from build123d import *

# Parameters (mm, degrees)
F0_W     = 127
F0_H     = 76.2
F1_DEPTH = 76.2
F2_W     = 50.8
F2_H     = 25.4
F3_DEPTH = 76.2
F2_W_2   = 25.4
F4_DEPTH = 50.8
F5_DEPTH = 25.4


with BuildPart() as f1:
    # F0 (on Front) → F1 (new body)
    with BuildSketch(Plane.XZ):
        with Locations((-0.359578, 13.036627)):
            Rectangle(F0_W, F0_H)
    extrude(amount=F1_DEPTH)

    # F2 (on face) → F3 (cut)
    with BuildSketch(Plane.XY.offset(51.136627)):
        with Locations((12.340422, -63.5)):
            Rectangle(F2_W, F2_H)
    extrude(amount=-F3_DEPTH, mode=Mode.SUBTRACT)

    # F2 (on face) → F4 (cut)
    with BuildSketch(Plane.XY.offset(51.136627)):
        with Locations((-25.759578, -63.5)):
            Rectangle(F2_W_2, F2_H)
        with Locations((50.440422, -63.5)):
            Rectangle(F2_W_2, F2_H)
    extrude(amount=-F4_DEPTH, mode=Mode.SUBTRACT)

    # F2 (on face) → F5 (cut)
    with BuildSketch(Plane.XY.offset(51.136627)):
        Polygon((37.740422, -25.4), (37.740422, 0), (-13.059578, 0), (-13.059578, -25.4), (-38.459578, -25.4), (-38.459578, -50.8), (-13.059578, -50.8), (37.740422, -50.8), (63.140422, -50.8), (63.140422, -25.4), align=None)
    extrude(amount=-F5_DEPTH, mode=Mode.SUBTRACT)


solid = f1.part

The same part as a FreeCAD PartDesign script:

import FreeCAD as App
import Part
import Sketcher
from FreeCAD import Vector
Q = App.Units.Quantity

doc = App.newDocument("Part")
body = doc.addObject("PartDesign::Body", "Body")

sketch1 = body.newObject("Sketcher::SketchObject", "Sketch")
sketch1.AttachmentSupport = (doc.getObject("XZ_Plane"), [""])
sketch1.MapMode = "FlatFace"
sketch1.addGeometry(Part.LineSegment(Vector(-64, 51, 0), Vector(-64, -25, 0)), False)
sketch1.addGeometry(Part.LineSegment(Vector(-64, -25, 0), Vector(63, -25, 0)), False)
sketch1.addGeometry(Part.LineSegment(Vector(63, -25, 0), Vector(63, 51, 0)), False)
sketch1.addGeometry(Part.LineSegment(Vector(63, 51, 0), Vector(-64, 51, 0)), False)
sketch1.addConstraint(Sketcher.Constraint("Coincident", 0, 2, 1, 1))
sketch1.addConstraint(Sketcher.Constraint("Coincident", 1, 2, 2, 1))
sketch1.addConstraint(Sketcher.Constraint("Coincident", 2, 2, 3, 1))
sketch1.addConstraint(Sketcher.Constraint("Coincident", 3, 2, 0, 1))
sketch1.addConstraint(Sketcher.Constraint("Vertical", 0))
sketch1.addConstraint(Sketcher.Constraint("Horizontal", 1))
sketch1.addConstraint(Sketcher.Constraint("Vertical", 2))
sketch1.addConstraint(Sketcher.Constraint("Horizontal", 3))
sketch1.addConstraint(Sketcher.Constraint("DistanceX", 1, 1, 1, 2, Q("5 in")))
sketch1.addConstraint(Sketcher.Constraint("DistanceY", 0, 2, 0, 1, Q("3 in")))
sketch1.addConstraint(Sketcher.Constraint("DistanceX", 0, 2, -1, 1, Q("63.859578 mm")))
sketch1.addConstraint(Sketcher.Constraint("DistanceY", 0, 2, -1, 1, Q("25.063373 mm")))
pad1 = body.newObject("PartDesign::Pad", "Pad")
pad1.Profile = sketch1
pad1.Length = Q("3 in")

sketch2 = body.newObject("Sketcher::SketchObject", "Sketch001")
sketch2.AttachmentSupport = (doc.getObject("XY_Plane"), [""])
sketch2.MapMode = "FlatFace"
sketch2.AttachmentOffset = App.Placement(Vector(0, 0, 51.136627), App.Rotation())
sketch2.addGeometry(Part.LineSegment(Vector(-13, -51, 0), Vector(-13, -76, 0)), False)
sketch2.addGeometry(Part.LineSegment(Vector(-13, -76, 0), Vector(38, -76, 0)), False)
sketch2.addGeometry(Part.LineSegment(Vector(38, -76, 0), Vector(38, -51, 0)), False)
sketch2.addGeometry(Part.LineSegment(Vector(38, -51, 0), Vector(-13, -51, 0)), False)
sketch2.addConstraint(Sketcher.Constraint("Coincident", 0, 2, 1, 1))
sketch2.addConstraint(Sketcher.Constraint("Coincident", 1, 2, 2, 1))
sketch2.addConstraint(Sketcher.Constraint("Coincident", 2, 2, 3, 1))
sketch2.addConstraint(Sketcher.Constraint("Coincident", 3, 2, 0, 1))
sketch2.addConstraint(Sketcher.Constraint("Vertical", 0))
sketch2.addConstraint(Sketcher.Constraint("Horizontal", 1))
sketch2.addConstraint(Sketcher.Constraint("Vertical", 2))
sketch2.addConstraint(Sketcher.Constraint("Horizontal", 3))
sketch2.addConstraint(Sketcher.Constraint("DistanceX", 1, 1, 1, 2, Q("2 in")))
sketch2.addConstraint(Sketcher.Constraint("DistanceY", 0, 2, 0, 1, Q("1 in")))
sketch2.addConstraint(Sketcher.Constraint("DistanceY", 0, 2, -1, 1, Q("3 in")))
sketch2.addConstraint(Sketcher.Constraint("DistanceX", 0, 2, -1, 1, Q("13.059578 mm")))
pocket1 = body.newObject("PartDesign::Pocket", "Pocket")
pocket1.Profile = sketch2
pocket1.Length = Q("3 in")

sketch3 = body.newObject("Sketcher::SketchObject", "Sketch002")
sketch3.AttachmentSupport = (doc.getObject("XY_Plane"), [""])
sketch3.MapMode = "FlatFace"
sketch3.AttachmentOffset = App.Placement(Vector(0, 0, 51.136627), App.Rotation())
sketch3.addGeometry(Part.LineSegment(Vector(-38, -51, 0), Vector(-38, -76, 0)), False)
sketch3.addGeometry(Part.LineSegment(Vector(-38, -76, 0), Vector(-13, -76, 0)), False)
sketch3.addGeometry(Part.LineSegment(Vector(-13, -76, 0), Vector(-13, -51, 0)), False)
sketch3.addGeometry(Part.LineSegment(Vector(-13, -51, 0), Vector(-38, -51, 0)), False)
sketch3.addGeometry(Part.LineSegment(Vector(38, -51, 0), Vector(38, -76, 0)), False)
sketch3.addGeometry(Part.LineSegment(Vector(38, -76, 0), Vector(63, -76, 0)), False)
sketch3.addGeometry(Part.LineSegment(Vector(63, -76, 0), Vector(63, -51, 0)), False)
sketch3.addGeometry(Part.LineSegment(Vector(63, -51, 0), Vector(38, -51, 0)), False)
sketch3.addConstraint(Sketcher.Constraint("Coincident", 0, 2, 1, 1))
sketch3.addConstraint(Sketcher.Constraint("Coincident", 1, 2, 2, 1))
sketch3.addConstraint(Sketcher.Constraint("Coincident", 2, 2, 3, 1))
sketch3.addConstraint(Sketcher.Constraint("Coincident", 3, 2, 0, 1))
sketch3.addConstraint(Sketcher.Constraint("Coincident", 4, 2, 5, 1))
sketch3.addConstraint(Sketcher.Constraint("Coincident", 5, 2, 6, 1))
sketch3.addConstraint(Sketcher.Constraint("Coincident", 6, 2, 7, 1))
sketch3.addConstraint(Sketcher.Constraint("Coincident", 7, 2, 4, 1))
sketch3.addConstraint(Sketcher.Constraint("Vertical", 0))
sketch3.addConstraint(Sketcher.Constraint("Horizontal", 1))
sketch3.addConstraint(Sketcher.Constraint("Vertical", 2))
sketch3.addConstraint(Sketcher.Constraint("Horizontal", 3))
sketch3.addConstraint(Sketcher.Constraint("Vertical", 4))
sketch3.addConstraint(Sketcher.Constraint("Horizontal", 5))
sketch3.addConstraint(Sketcher.Constraint("Vertical", 6))
sketch3.addConstraint(Sketcher.Constraint("Horizontal", 7))
sketch3.addConstraint(Sketcher.Constraint("Horizontal", 1, 2, 4, 2))
sketch3.addConstraint(Sketcher.Constraint("Horizontal", 3, 2, 6, 2))
sketch3.addConstraint(Sketcher.Constraint("Equal", 3, 5))
sketch3.addConstraint(Sketcher.Constraint("Equal", 7, 0))
sketch3.addConstraint(Sketcher.Constraint("DistanceX", 1, 1, 1, 2, Q("1 in")))
sketch3.addConstraint(Sketcher.Constraint("DistanceY", 0, 2, -1, 1, Q("3 in")))
sketch3.addConstraint(Sketcher.Constraint("DistanceX", 1, 2, 4, 2, Q("2 in")))
sketch3.addConstraint(Sketcher.Constraint("DistanceX", 0, 2, -1, 1, Q("38.459578 mm")))
pocket2 = body.newObject("PartDesign::Pocket", "Pocket001")
pocket2.Profile = sketch3
pocket2.Length = Q("2 in")

sketch4 = body.newObject("Sketcher::SketchObject", "Sketch003")
sketch4.AttachmentSupport = (doc.getObject("XY_Plane"), [""])
sketch4.MapMode = "FlatFace"
sketch4.AttachmentOffset = App.Placement(Vector(0, 0, 51.136627), App.Rotation())
sketch4.addGeometry(Part.LineSegment(Vector(38, -25, 0), Vector(38, 0, 0)), False)
sketch4.addGeometry(Part.LineSegment(Vector(38, 0, 0), Vector(-13, 0, 0)), False)
sketch4.addGeometry(Part.LineSegment(Vector(-13, 0, 0), Vector(-13, -25, 0)), False)
sketch4.addGeometry(Part.LineSegment(Vector(-13, -25, 0), Vector(-38, -25, 0)), False)
sketch4.addGeometry(Part.LineSegment(Vector(-38, -25, 0), Vector(-38, -51, 0)), False)
sketch4.addGeometry(Part.LineSegment(Vector(-38, -51, 0), Vector(63, -51, 0)), False)
sketch4.addGeometry(Part.LineSegment(Vector(63, -51, 0), Vector(63, -25, 0)), False)
sketch4.addGeometry(Part.LineSegment(Vector(63, -25, 0), Vector(38, -25, 0)), False)
sketch4.addConstraint(Sketcher.Constraint("Coincident", 0, 2, 1, 1))
sketch4.addConstraint(Sketcher.Constraint("Coincident", 1, 2, 2, 1))
sketch4.addConstraint(Sketcher.Constraint("Coincident", 2, 2, 3, 1))
sketch4.addConstraint(Sketcher.Constraint("Coincident", 3, 2, 4, 1))
sketch4.addConstraint(Sketcher.Constraint("Coincident", 4, 2, 5, 1))
sketch4.addConstraint(Sketcher.Constraint("Coincident", 5, 2, 6, 1))
sketch4.addConstraint(Sketcher.Constraint("Coincident", 6, 2, 7, 1))
sketch4.addConstraint(Sketcher.Constraint("Coincident", 7, 2, 0, 1))
sketch4.addConstraint(Sketcher.Constraint("Vertical", 0))
sketch4.addConstraint(Sketcher.Constraint("Horizontal", 1))
sketch4.addConstraint(Sketcher.Constraint("Vertical", 2))
sketch4.addConstraint(Sketcher.Constraint("Horizontal", 3))
sketch4.addConstraint(Sketcher.Constraint("Vertical", 4))
sketch4.addConstraint(Sketcher.Constraint("Horizontal", 5))
sketch4.addConstraint(Sketcher.Constraint("Vertical", 6))
sketch4.addConstraint(Sketcher.Constraint("Horizontal", 7))
sketch4.addConstraint(Sketcher.Constraint("PointOnObject", 0, 2, -1))
sketch4.addConstraint(Sketcher.Constraint("Horizontal", 3, 2, 6, 2))
sketch4.addConstraint(Sketcher.Constraint("Equal", 3, 7))
sketch4.addConstraint(Sketcher.Constraint("Equal", 7, 0))
sketch4.addConstraint(Sketcher.Constraint("Equal", 2, 4))
sketch4.addConstraint(Sketcher.Constraint("DistanceX", 1, 2, 1, 1, Q("2 in")))
sketch4.addConstraint(Sketcher.Constraint("DistanceX", 3, 2, 3, 1, Q("1 in")))
sketch4.addConstraint(Sketcher.Constraint("DistanceX", -1, 1, 0, 2, Q("37.740422 mm")))
pocket3 = body.newObject("PartDesign::Pocket", "Pocket002")
pocket3.Profile = sketch4
pocket3.Length = Q("1 in")

doc.recompute()
